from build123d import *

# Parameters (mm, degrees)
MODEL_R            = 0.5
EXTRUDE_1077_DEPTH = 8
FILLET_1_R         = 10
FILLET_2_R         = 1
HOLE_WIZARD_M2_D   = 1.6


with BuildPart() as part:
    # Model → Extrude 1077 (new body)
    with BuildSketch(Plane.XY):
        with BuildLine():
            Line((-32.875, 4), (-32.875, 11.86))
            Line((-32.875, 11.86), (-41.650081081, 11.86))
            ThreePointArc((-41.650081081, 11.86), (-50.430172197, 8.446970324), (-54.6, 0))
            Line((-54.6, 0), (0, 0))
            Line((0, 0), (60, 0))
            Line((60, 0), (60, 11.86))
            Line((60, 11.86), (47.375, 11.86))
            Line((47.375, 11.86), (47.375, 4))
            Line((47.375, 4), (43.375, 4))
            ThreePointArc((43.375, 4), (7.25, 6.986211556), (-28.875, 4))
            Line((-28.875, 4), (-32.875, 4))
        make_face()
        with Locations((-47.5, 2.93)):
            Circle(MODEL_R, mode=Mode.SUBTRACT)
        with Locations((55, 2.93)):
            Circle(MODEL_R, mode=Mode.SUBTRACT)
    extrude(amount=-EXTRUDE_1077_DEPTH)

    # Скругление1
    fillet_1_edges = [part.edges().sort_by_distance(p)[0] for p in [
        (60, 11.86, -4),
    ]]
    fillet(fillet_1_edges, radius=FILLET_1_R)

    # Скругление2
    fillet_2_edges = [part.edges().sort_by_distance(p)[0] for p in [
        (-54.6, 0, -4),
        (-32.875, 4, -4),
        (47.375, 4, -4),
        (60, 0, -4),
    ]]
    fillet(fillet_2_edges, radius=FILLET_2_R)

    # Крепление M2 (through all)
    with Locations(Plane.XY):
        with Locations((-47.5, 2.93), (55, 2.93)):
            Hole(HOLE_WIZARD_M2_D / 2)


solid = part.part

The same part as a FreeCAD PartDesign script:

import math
import FreeCAD as App
import Part
import Sketcher

V = App.Vector


def edges_at(feature, points):
    """Names of the edges that pass closest to the given points."""
    edges = feature.Shape.Edges
    near = lambda p: min(range(len(edges)), key=lambda i: edges[i].distToShape(Part.Vertex(*p))[0])
    return sorted({f"Edge{near(p) + 1}" for p in points})

doc = App.newDocument("Part")
body = doc.addObject("PartDesign::Body", "Body")

# Sketch on XY plane
sketch1 = body.newObject("Sketcher::SketchObject", "Sketch")
sketch1.AttachmentSupport = (doc.getObject("XY_Plane"), [""])
sketch1.MapMode = "FlatFace"
sketch1.addGeometry([
    Part.LineSegment(V(-32.9, 4, 0), V(-32.9, 11.9, 0)),  # 0
    Part.LineSegment(V(-32.9, 11.9, 0), V(-41.7, 11.9, 0)),  # 1
    Part.ArcOfCircle(Part.Circle(V(-41.7, -1.1, 0), V(0, 0, 1), 13), math.radians(90), math.radians(175)),  # 2
    Part.LineSegment(V(-54.6, 0, 0), V(60, 0, 0)),  # 3
    Part.LineSegment(V(60, 0, 0), V(60, 11.9, 0)),  # 4
    Part.LineSegment(V(60, 11.9, 0), V(47.4, 11.9, 0)),  # 5
    Part.LineSegment(V(47.4, 11.9, 0), V(47.4, 4, 0)),  # 6
    Part.LineSegment(V(47.4, 4, 0), V(43.4, 4, 0)),  # 7
    Part.ArcOfCircle(Part.Circle(V(7.2, -213, 0), V(0, 0, 1), 220), math.radians(80.55), math.radians(99.45)),  # 8
    Part.LineSegment(V(-28.9, 4, 0), V(-32.9, 4, 0)),  # 9
    Part.Circle(V(-47.5, 2.9, 0), V(0, 0, 1), 0.5),  # 10
    Part.Circle(V(55, 2.9, 0), V(0, 0, 1), 0.5),  # 11
], False)
sketch1.addConstraint([
    Sketcher.Constraint("Coincident", 0, 2, 1, 1),
    Sketcher.Constraint("Tangent", 1, 2, 2, 1),
    Sketcher.Constraint("Coincident", 2, 2, 3, 1),
    Sketcher.Constraint("Coincident", 3, 2, 4, 1),
    Sketcher.Constraint("Coincident", 4, 2, 5, 1),
    Sketcher.Constraint("Coincident", 5, 2, 6, 1),
    Sketcher.Constraint("Coincident", 6, 2, 7, 1),
    Sketcher.Constraint("Coincident", 7, 2, 8, 1),
    Sketcher.Constraint("Coincident", 8, 2, 9, 1),
    Sketcher.Constraint("Coincident", 9, 2, 0, 1),
    Sketcher.Constraint("Vertical", 0),
    Sketcher.Constraint("Horizontal", 1),
    Sketcher.Constraint("Horizontal", 3),
    Sketcher.Constraint("Vertical", 4),
    Sketcher.Constraint("Horizontal", 5),
    Sketcher.Constraint("Vertical", 6),
    Sketcher.Constraint("Horizontal", 7),
    Sketcher.Constraint("Horizontal", 9),
    Sketcher.Constraint("Equal", 10, 11),
    Sketcher.Constraint("PointOnObject", 2, 2, -1),
    Sketcher.Constraint("Horizontal", 10, 3, 11, 3),
    Sketcher.Constraint("Horizontal", 1, 2, 4, 2),
    Sketcher.Constraint("Horizontal", 7, 2, 8, 2),
    Sketcher.Constraint("Equal", 7, 9),
    Sketcher.Constraint("Diameter", 10, 1.0),
    Sketcher.Constraint("Radius", 2, 13.0),
    Sketcher.Constraint("Radius", 8, 220.0),
    Sketcher.Constraint("DistanceX", 7, 2, 7, 1, 4.0),
    Sketcher.Constraint("DistanceX", 3, 1, 3, 2, 114.6),
    Sketcher.Constraint("DistanceX", -1, 1, 11, 3, 55.0),
    Sketcher.Constraint("DistanceX", -1, 1, 3, 2, 60.0),
    Sketcher.Constraint("DistanceY", -1, 1, 6, 2, 4.0),
    Sketcher.Constraint("DistanceY", 0, 1, 0, 2, 7.86),
    Sketcher.Constraint("DistanceX", 10, 3, -1, 1, 47.5),
    Sketcher.Constraint("DistanceX", 5, 2, 5, 1, 12.625),
    Sketcher.Constraint("DistanceX", -1, 1, 8, 3, 7.25),
    Sketcher.Constraint("DistanceY", -1, 1, 10, 3, 2.93),
])
pad1 = body.newObject("PartDesign::Pad", "Pad")
pad1.Profile = sketch1
pad1.Length = 8
pad1.Reversed = True
doc.recompute()

fillet = body.newObject("PartDesign::Fillet", "Fillet")
fillet.Base = (pad1, edges_at(pad1, [(60, 11.86, -4)]))
fillet.Radius = 10
doc.recompute()

fillet2 = body.newObject("PartDesign::Fillet", "Fillet001")
fillet2.Base = (fillet, edges_at(fillet, [
    (-54.6, 0, -4),
    (-32.875, 4, -4),
    (47.375, 4, -4),
    (60, 0, -4),
]))
fillet2.Radius = 1

# Sketch on XY plane
sketch2 = body.newObject("Sketcher::SketchObject", "Sketch001")
sketch2.AttachmentSupport = (doc.getObject("XY_Plane"), [""])
sketch2.MapMode = "FlatFace"
sketch2.addGeometry([
    Part.Circle(V(-47.5, 2.9, 0), V(0, 0, 1), 0.8),
    Part.Circle(V(55, 2.9, 0), V(0, 0, 1), 0.8),
], False)
sketch2.addConstraint([
    Sketcher.Constraint("Equal", 0, 1),
    Sketcher.Constraint("Horizontal", 0, 3, 1, 3),
    Sketcher.Constraint("Diameter", 0, 1.6),
    Sketcher.Constraint("DistanceX", -1, 1, 1, 3, 55.0),
    Sketcher.Constraint("DistanceX", 0, 3, -1, 1, 47.5),
    Sketcher.Constraint("DistanceY", -1, 1, 0, 3, 2.93),
])
doc.recompute()
hole = body.newObject("PartDesign::Hole", "Hole")
hole.Profile = sketch2
hole.ThreadType = "None"
hole.Diameter = 1.6
hole.DepthType = "ThroughAll"

doc.recompute()
